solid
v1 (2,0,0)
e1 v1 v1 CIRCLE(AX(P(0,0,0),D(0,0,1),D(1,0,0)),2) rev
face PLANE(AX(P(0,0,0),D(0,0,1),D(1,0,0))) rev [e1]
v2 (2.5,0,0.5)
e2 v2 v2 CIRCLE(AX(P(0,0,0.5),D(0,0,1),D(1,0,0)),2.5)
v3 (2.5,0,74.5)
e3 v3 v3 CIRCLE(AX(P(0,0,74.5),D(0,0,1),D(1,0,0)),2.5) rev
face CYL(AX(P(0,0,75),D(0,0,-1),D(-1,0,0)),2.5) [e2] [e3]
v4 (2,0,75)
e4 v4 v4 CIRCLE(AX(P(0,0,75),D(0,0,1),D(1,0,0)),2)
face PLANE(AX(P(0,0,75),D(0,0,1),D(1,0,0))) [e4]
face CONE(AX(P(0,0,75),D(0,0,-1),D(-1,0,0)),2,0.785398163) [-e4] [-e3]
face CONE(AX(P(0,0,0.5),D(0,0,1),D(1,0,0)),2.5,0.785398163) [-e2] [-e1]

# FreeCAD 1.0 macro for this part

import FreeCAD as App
import Part
import Sketcher


def edges_at(feature, points):
    """Names of the edges that pass closest to the given points."""
    edges = feature.Shape.Edges
    near = lambda p: min(range(len(edges)), key=lambda i: edges[i].distToShape(Part.Vertex(*p))[0])
    return sorted({f"Edge{near(p) + 1}" for p in points})

doc = App.newDocument("Part")
body = doc.addObject("PartDesign::Body", "Body")

sketch1 = body.newObject("Sketcher::SketchObject", "Sketch")
sketch1.AttachmentSupport = (doc.getObject("XY_Plane"), [""])
sketch1.MapMode = "FlatFace"
sketch1.addGeometry(Part.Circle(App.Vector(0, 0, 0), App.Vector(0, 0, 1), 2.5), False)
sketch1.addConstraint(Sketcher.Constraint("Coincident", 0, 3, -1, 1))
sketch1.addConstraint(Sketcher.Constraint("Diameter", 0, 5.0))
pad1 = body.newObject("PartDesign::Pad", "Pad")
pad1.Profile = sketch1
pad1.Length = 75
doc.recompute()

chamfer = body.newObject("PartDesign::Chamfer", "Chamfer")
chamfer.Base = (pad1, edges_at(pad1, [(-2.5, 0, 0), (-2.5, 0, 75)]))
chamfer.Size = 0.5

doc.recompute()
